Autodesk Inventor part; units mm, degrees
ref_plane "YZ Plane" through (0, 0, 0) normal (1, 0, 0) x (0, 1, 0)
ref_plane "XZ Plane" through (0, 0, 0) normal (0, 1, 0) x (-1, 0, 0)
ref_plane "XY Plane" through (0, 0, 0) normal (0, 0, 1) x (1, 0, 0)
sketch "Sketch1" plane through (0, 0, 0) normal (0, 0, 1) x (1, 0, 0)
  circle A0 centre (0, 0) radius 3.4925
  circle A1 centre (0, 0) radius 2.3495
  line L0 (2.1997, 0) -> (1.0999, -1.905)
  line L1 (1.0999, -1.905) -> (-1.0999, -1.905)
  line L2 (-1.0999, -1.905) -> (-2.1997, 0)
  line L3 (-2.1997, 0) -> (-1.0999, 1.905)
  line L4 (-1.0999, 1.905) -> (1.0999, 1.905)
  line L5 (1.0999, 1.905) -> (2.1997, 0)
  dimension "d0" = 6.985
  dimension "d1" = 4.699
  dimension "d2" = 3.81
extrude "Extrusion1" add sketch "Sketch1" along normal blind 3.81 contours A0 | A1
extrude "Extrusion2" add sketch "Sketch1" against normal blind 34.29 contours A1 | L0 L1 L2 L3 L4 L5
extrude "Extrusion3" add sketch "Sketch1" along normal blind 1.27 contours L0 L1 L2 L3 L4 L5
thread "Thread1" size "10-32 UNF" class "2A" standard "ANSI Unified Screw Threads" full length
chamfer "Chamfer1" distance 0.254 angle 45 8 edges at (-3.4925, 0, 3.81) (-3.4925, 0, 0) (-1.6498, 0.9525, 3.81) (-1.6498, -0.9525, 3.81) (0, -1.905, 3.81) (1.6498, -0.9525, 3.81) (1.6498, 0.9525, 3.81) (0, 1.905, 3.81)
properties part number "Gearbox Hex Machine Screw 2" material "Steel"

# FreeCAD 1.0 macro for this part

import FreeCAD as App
import Part
import Sketcher
from FreeCAD import Vector
Q = App.Units.Quantity


def edges_at(feature, points):
    """Names of the edges that pass closest to the given points."""
    edges = feature.Shape.Edges
    near = lambda p: min(range(len(edges)), key=lambda i: edges[i].distToShape(Part.Vertex(*p))[0])
    return sorted({f"Edge{near(p) + 1}" for p in points})


def add_polygon(sketch, points):
    """Adds a closed chain of lines whose ends are joined by coincident constraints."""
    first, n = sketch.GeometryCount, len(points)
    for a, b in zip(points, points[1:] + points[:1]):
        sketch.addGeometry(Part.LineSegment(App.Vector(*a, 0), App.Vector(*b, 0)), False)
    for i in range(n):
        sketch.addConstraint(Sketcher.Constraint("Coincident", first + i, 2, first + (i + 1) % n, 1))

doc = App.newDocument("Part")
body = doc.addObject("PartDesign::Body", "Body")

# Sketch on XY plane
sketch1 = body.newObject("Sketcher::SketchObject", "Sketch")
sketch1.AttachmentSupport = (doc.getObject("XY_Plane"), [""])
sketch1.MapMode = "FlatFace"
sketch1.addGeometry(Part.Circle(Vector(0, 0, 0), Vector(0, 0, 1), 3.5), False)  # 0
add_polygon(sketch1, [(2.2, 0), (1.1, -1.9), (-1.1, -1.9), (-2.2, 0), (-1.1, 1.9), (1.1, 1.9)])  # lines 1-6
sketch1.addConstraint([
    Sketcher.Constraint("Horizontal", 2),
    Sketcher.Constraint("Horizontal", 5),
    Sketcher.Constraint("Coincident", 0, 3, -1, 1),
    Sketcher.Constraint("Symmetric", 1, 2, 4, 2, -1, 1),
    Sketcher.Constraint("Symmetric", 3, 2, 6, 2, -1, 1),
    Sketcher.Constraint("PointOnObject", 3, 2, -1),
    Sketcher.Constraint("Parallel", 3, 6),
    Sketcher.Constraint("Vertical", 2, 2, 4, 2),
    Sketcher.Constraint("Diameter", 0, Q("0.275 in")),
    Sketcher.Constraint("DistanceY", 2, 2, 4, 2, Q("0.15 in")),
    Sketcher.Constraint("Angle", 1, Q("-119.9988 deg")),
    Sketcher.Constraint("DistanceX", 2, 2, 2, 1, Q("0.0866 in")),
])
pad1 = body.newObject("PartDesign::Pad", "Pad")
pad1.Profile = sketch1
pad1.Length = Q("0.15 in")

# Sketch on XY plane
sketch2 = body.newObject("Sketcher::SketchObject", "Sketch001")
sketch2.AttachmentSupport = (doc.getObject("XY_Plane"), [""])
sketch2.MapMode = "FlatFace"
sketch2.addGeometry(Part.Circle(Vector(0, 0, 0), Vector(0, 0, 1), 2.3), False)
sketch2.addConstraint([
    Sketcher.Constraint("Coincident", 0, 3, -1, 1),
    Sketcher.Constraint("Diameter", 0, Q("0.185 in")),
])
pad2 = body.newObject("PartDesign::Pad", "Pad001")
pad2.Profile = sketch2
pad2.Length = Q("1.35 in")
pad2.Reversed = True

# Sketch on XY plane
sketch3 = body.newObject("Sketcher::SketchObject", "Sketch002")
sketch3.AttachmentSupport = (doc.getObject("XY_Plane"), [""])
sketch3.MapMode = "FlatFace"
add_polygon(sketch3, [(1.1, -1.9), (2.2, 0), (1.1, 1.9), (-1.1, 1.9), (-2.2, 0), (-1.1, -1.9)])  # lines 0-5
sketch3.addConstraint([
    Sketcher.Constraint("Horizontal", 2),
    Sketcher.Constraint("Horizontal", 5),
    Sketcher.Constraint("Symmetric", 0, 2, 3, 2, -1, 1),
    Sketcher.Constraint("Symmetric", 1, 2, 4, 2, -1, 1),
    Sketcher.Constraint("PointOnObject", 0, 2, -1),
    Sketcher.Constraint("Parallel", 0, 3),
    Sketcher.Constraint("Vertical", 2, 2, 4, 2),
    Sketcher.Constraint("DistanceY", 4, 2, 2, 2, Q("0.15 in")),
    Sketcher.Constraint("Angle", 0, Q("60.0012 deg")),
    Sketcher.Constraint("DistanceX", 2, 2, 2, 1, Q("0.0866 in")),
])
pad3 = body.newObject("PartDesign::Pad", "Pad002")
pad3.Profile = sketch3
pad3.Length = Q("0.05 in")
doc.recompute()

chamfer = body.newObject("PartDesign::Chamfer", "Chamfer")
chamfer.Base = (pad3, edges_at(pad3, [
    (-3.493, 0, 3.81),
    (-3.493, 0, 0),
    (-1.65, 0.953, 3.81),
    (-1.65, -0.953, 3.81),
    (0, -1.905, 3.81),
    (1.65, -0.953, 3.81),
    (1.65, 0.953, 3.81),
    (0, 1.905, 3.81),
]))
chamfer.Size = Q("0.01 in")

doc.recompute()
